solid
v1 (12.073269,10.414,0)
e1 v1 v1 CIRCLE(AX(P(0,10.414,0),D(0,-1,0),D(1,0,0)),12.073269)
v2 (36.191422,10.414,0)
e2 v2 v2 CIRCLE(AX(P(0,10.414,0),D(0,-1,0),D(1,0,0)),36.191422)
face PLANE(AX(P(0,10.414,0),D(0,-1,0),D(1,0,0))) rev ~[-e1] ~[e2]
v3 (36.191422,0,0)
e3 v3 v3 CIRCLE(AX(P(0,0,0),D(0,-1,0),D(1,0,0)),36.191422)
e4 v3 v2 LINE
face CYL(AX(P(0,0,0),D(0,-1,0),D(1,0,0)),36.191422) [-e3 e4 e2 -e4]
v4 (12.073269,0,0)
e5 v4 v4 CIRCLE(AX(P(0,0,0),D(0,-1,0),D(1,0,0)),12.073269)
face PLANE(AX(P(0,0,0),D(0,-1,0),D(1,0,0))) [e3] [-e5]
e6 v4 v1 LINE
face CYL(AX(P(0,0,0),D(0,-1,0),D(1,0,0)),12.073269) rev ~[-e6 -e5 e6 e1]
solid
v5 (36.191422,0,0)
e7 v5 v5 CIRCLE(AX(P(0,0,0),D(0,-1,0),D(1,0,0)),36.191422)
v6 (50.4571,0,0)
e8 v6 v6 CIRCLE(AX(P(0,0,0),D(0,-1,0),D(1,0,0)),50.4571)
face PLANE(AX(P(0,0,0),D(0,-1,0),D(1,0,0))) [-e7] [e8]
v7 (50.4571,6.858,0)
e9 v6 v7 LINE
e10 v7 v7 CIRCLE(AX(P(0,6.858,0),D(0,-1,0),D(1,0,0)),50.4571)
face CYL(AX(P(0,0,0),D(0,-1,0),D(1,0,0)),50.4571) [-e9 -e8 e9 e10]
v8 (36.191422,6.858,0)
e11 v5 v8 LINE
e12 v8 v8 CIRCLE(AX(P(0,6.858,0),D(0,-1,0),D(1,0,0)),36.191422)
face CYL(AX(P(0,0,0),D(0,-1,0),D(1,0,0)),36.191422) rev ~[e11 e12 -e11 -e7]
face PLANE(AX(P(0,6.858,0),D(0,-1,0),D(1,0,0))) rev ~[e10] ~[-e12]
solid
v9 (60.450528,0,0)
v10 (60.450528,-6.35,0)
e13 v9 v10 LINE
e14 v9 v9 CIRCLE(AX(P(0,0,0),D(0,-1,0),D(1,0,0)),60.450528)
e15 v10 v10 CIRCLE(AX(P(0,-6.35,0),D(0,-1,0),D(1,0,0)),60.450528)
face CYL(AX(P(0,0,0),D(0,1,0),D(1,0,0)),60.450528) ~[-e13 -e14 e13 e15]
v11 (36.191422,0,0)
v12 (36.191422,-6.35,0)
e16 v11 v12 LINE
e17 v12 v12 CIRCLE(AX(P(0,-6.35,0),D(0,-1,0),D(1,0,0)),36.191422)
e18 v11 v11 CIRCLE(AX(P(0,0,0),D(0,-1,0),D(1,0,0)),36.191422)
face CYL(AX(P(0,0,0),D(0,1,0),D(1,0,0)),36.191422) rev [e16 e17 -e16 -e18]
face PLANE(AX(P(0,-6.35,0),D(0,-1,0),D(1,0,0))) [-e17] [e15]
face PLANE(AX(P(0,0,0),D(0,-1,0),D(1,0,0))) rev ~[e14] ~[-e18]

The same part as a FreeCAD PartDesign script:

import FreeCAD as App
import Part
import Sketcher

V = App.Vector
Q = App.Units.Quantity

doc = App.newDocument("Part")
body = doc.addObject("PartDesign::Body", "Body")

# Sketch on XZ plane
sketch1 = body.newObject("Sketcher::SketchObject", "Sketch")
sketch1.AttachmentSupport = (doc.getObject("XZ_Plane"), [""])
sketch1.MapMode = "FlatFace"
sketch1.addGeometry(Part.Circle(V(0, 0, 0), V(0, 0, 1), 36), False)
sketch1.addGeometry(Part.Circle(V(0, 0, 0), V(0, 0, 1), 12), False)
sketch1.addConstraint(Sketcher.Constraint("Coincident", 0, 3, -1, 1))
sketch1.addConstraint(Sketcher.Constraint("Coincident", 1, 3, -1, 1))
sketch1.addConstraint(Sketcher.Constraint("Diameter", 0, Q("72.382844 mm")))
sketch1.addConstraint(Sketcher.Constraint("Diameter", 1, Q("24.146538 mm")))
pad1 = body.newObject("PartDesign::Pad", "Pad")
pad1.Profile = sketch1
pad1.Length = Q("0.41 in")
pad1.Reversed = True
body2 = doc.addObject("PartDesign::Body", "Body001")

# Sketch on XZ plane
sketch2 = body2.newObject("Sketcher::SketchObject", "Sketch001")
sketch2.AttachmentSupport = (doc.getObject("XZ_Plane001"), [""])
sketch2.MapMode = "FlatFace"
sketch2.addGeometry(Part.Circle(V(0, 0, 0), V(0, 0, 1), 60), False)
sketch2.addGeometry(Part.Circle(V(0, 0, 0), V(0, 0, 1), 36), False)
sketch2.addConstraint(Sketcher.Constraint("Coincident", 0, 3, -1, 1))
sketch2.addConstraint(Sketcher.Constraint("Coincident", 1, 3, -1, 1))
sketch2.addConstraint(Sketcher.Constraint("Diameter", 0, Q("120.901056 mm")))
sketch2.addConstraint(Sketcher.Constraint("Diameter", 1, Q("72.382844 mm")))
pad2 = body2.newObject("PartDesign::Pad", "Pad001")
pad2.Profile = sketch2
pad2.Length = Q("0.25 in")
body3 = doc.addObject("PartDesign::Body", "Body002")

# Sketch on XZ plane
sketch3 = body3.newObject("Sketcher::SketchObject", "Sketch002")
sketch3.AttachmentSupport = (doc.getObject("XZ_Plane002"), [""])
sketch3.MapMode = "FlatFace"
sketch3.addGeometry(Part.Circle(V(0, 0, 0), V(0, 0, 1), 50), False)
sketch3.addGeometry(Part.Circle(V(0, 0, 0), V(0, 0, 1), 36), False)
sketch3.addConstraint(Sketcher.Constraint("Coincident", 0, 3, -1, 1))
sketch3.addConstraint(Sketcher.Constraint("Coincident", 1, 3, -1, 1))
sketch3.addConstraint(Sketcher.Constraint("Diameter", 0, Q("3.973 in")))
sketch3.addConstraint(Sketcher.Constraint("Diameter", 1, Q("72.382844 mm")))
pad3 = body3.newObject("PartDesign::Pad", "Pad002")
pad3.Profile = sketch3
pad3.Length = Q("0.27 in")
pad3.Reversed = True

doc.recompute()
